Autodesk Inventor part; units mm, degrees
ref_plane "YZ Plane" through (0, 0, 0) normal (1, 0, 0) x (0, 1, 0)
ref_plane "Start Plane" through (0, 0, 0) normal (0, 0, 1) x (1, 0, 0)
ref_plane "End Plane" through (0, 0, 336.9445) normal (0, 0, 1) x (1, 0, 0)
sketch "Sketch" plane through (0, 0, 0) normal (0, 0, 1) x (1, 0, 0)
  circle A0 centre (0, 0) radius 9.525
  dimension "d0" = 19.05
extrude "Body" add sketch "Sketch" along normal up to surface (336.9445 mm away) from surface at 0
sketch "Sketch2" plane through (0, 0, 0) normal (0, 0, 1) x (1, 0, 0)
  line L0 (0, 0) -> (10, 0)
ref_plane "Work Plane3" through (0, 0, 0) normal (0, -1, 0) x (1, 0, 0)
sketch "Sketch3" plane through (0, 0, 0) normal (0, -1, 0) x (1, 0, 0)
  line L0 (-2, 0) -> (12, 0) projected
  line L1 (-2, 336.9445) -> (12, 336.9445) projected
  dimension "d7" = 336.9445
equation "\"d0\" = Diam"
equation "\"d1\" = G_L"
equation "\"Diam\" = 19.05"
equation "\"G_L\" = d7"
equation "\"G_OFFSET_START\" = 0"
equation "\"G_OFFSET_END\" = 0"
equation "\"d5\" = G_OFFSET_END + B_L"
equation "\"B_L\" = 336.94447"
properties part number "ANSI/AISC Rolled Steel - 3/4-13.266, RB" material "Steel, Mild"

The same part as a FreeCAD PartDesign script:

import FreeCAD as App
import Part
import Sketcher
from FreeCAD import Vector
Q = App.Units.Quantity

doc = App.newDocument("Part")
params = doc.addObject("Spreadsheet::Sheet", "Params")
for row, (alias, value) in enumerate([
    ("sketch1_diameter", "0.75 in"),
    ("pad1_length", "336.9445 mm"),
], start=1):
    params.set(f"A{row}", alias)
    params.set(f"B{row}", "=" + value)
    params.setAlias(f"B{row}", alias)

body = doc.addObject("PartDesign::Body", "Body")

sketch1 = body.newObject("Sketcher::SketchObject", "Sketch")
sketch1.AttachmentSupport = (doc.getObject("XY_Plane"), [""])
sketch1.MapMode = "FlatFace"
sketch1.addGeometry(Part.Circle(Vector(0, 0, 0), Vector(0, 0, 1), 9.525), False)
sketch1.addConstraint(Sketcher.Constraint("Coincident", 0, 3, -1, 1))
sketch1.addConstraint(Sketcher.Constraint("Diameter", 0, Q("0.75 in")))
sketch1.setExpression("Constraints[1]", "Params.sketch1_diameter")
pad1 = body.newObject("PartDesign::Pad", "Pad")
pad1.Profile = sketch1
pad1.setExpression("Length", "Params.pad1_length")

doc.recompute()
